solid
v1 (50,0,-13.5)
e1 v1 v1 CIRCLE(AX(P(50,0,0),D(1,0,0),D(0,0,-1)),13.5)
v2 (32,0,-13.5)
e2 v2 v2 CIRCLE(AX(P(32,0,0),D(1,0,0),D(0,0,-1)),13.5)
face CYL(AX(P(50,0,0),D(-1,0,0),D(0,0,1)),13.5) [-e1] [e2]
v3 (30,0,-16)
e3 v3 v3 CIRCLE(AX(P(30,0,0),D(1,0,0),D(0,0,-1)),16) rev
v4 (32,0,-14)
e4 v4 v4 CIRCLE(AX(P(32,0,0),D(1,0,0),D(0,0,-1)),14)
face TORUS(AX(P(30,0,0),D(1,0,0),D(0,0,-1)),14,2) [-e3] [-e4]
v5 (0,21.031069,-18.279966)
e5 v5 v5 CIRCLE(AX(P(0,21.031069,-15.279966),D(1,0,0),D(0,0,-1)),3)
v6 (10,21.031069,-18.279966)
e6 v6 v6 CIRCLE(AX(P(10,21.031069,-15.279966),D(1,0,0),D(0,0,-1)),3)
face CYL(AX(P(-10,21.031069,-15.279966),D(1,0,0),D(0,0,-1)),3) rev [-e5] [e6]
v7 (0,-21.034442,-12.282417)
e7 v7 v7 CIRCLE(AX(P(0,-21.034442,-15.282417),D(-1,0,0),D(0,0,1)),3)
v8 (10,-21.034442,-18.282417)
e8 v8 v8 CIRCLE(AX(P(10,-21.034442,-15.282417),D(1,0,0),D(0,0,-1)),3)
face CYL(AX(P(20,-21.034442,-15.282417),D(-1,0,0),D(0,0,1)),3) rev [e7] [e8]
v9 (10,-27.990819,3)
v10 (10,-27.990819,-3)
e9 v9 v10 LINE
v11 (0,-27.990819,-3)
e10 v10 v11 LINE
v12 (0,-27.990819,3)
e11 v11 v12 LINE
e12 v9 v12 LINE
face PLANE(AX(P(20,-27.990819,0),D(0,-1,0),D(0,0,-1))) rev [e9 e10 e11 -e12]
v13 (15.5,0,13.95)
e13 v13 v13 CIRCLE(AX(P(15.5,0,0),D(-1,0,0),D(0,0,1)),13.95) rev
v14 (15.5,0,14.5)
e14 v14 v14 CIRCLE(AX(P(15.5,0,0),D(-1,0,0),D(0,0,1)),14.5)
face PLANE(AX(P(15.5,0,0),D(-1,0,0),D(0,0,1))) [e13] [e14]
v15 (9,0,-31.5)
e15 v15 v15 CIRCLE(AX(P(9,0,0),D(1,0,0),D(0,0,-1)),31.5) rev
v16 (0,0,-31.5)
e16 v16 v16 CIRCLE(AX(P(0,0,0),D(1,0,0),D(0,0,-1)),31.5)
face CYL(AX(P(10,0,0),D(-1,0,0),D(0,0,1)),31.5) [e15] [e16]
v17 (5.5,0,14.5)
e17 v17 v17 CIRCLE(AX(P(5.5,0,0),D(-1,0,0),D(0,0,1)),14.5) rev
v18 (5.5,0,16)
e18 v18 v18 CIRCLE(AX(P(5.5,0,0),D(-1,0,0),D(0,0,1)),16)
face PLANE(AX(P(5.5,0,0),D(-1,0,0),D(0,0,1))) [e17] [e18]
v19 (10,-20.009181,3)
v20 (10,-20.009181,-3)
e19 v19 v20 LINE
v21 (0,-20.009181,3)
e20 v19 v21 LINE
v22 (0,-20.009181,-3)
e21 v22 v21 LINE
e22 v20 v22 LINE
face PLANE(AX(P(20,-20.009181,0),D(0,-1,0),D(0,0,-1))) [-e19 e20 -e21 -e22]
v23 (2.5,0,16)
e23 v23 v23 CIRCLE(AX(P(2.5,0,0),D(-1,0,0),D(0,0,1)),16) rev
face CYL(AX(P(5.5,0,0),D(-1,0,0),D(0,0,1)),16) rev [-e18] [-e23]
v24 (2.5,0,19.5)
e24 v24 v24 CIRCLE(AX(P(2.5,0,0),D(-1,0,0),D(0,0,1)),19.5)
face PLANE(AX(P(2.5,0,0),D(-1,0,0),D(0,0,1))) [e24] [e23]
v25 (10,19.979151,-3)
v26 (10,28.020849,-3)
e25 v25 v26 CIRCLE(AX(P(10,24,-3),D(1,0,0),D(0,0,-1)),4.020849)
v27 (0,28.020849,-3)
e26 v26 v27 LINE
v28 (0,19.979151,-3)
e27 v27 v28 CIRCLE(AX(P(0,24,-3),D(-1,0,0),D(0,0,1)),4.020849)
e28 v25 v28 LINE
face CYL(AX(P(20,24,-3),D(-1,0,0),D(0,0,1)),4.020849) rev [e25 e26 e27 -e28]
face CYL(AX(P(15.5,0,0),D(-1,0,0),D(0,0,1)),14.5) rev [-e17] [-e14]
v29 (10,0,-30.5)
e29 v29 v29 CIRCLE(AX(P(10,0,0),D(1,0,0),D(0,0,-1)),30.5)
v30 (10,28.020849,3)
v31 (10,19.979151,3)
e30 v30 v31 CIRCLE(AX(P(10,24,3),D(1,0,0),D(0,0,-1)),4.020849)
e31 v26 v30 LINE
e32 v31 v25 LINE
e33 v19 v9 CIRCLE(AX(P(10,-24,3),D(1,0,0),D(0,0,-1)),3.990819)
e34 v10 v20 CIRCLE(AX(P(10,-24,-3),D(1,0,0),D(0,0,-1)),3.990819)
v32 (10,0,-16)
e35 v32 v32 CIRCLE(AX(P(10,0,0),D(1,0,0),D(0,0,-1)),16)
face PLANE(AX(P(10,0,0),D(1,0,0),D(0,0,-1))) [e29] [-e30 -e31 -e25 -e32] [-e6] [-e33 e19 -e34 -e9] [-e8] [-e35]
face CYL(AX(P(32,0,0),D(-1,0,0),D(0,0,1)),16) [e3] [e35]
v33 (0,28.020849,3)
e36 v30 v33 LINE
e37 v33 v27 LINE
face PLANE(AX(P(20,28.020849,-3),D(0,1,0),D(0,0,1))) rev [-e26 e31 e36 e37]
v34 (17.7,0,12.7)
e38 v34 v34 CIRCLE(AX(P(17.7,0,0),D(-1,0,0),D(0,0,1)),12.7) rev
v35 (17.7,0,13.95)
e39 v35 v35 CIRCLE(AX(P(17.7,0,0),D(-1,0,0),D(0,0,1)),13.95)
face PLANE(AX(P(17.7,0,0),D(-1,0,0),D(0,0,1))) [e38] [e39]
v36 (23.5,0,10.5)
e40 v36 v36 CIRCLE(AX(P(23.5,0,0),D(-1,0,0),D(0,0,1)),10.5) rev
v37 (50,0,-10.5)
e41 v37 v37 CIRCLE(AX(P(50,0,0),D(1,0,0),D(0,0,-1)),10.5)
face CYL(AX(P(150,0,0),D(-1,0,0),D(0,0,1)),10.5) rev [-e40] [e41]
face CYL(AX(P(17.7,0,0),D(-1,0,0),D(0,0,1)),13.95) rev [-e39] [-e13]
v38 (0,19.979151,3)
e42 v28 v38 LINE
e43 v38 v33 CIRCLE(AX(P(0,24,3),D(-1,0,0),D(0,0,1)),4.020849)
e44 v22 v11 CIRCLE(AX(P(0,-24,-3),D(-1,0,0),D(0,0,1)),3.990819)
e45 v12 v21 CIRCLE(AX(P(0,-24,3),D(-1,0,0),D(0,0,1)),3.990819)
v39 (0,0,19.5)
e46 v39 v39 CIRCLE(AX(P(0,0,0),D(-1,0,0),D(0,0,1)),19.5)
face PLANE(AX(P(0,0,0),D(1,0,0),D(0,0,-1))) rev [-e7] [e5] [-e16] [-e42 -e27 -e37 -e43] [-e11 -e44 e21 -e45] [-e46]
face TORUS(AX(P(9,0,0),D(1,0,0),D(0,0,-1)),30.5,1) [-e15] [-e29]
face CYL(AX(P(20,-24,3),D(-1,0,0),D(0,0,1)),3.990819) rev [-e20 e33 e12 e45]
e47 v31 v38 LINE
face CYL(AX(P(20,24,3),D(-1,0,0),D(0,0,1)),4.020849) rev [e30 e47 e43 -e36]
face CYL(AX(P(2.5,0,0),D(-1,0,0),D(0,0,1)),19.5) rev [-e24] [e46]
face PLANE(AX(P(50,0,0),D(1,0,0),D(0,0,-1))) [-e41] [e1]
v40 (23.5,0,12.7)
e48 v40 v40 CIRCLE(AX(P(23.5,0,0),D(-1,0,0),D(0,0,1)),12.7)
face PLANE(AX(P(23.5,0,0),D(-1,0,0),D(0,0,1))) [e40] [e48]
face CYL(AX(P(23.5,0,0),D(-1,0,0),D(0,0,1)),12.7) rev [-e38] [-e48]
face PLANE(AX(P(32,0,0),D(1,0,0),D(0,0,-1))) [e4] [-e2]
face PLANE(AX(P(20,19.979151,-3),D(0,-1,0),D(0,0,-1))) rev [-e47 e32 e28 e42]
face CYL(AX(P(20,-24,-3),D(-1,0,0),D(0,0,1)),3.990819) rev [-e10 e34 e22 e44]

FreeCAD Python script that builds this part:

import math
import FreeCAD as App
import Part
import Sketcher
Q = App.Units.Quantity


def edges_at(feature, points):
    """Names of the edges that pass closest to the given points."""
    edges = feature.Shape.Edges
    near = lambda p: min(range(len(edges)), key=lambda i: edges[i].distToShape(Part.Vertex(*p))[0])
    return sorted({f"Edge{near(p) + 1}" for p in points})

doc = App.newDocument("Part")
body = doc.addObject("PartDesign::Body", "Body")

# Sketch on YZ plane
sketch1 = body.newObject("Sketcher::SketchObject", "Sketch")
sketch1.AttachmentSupport = (doc.getObject("YZ_Plane"), [""])
sketch1.MapMode = "FlatFace"
sketch1.addGeometry(Part.Circle(App.Vector(0, 0, 0), App.Vector(0, 0, 1), 32), False)
sketch1.addConstraint(Sketcher.Constraint("Coincident", 0, 3, -1, 1))
sketch1.addConstraint(Sketcher.Constraint("Diameter", 0, Q("63 mm")))
pad1 = body.newObject("PartDesign::Pad", "Pad")
pad1.Profile = sketch1
pad1.Length = 10

# Sketch on YZ plane
sketch2 = body.newObject("Sketcher::SketchObject", "Sketch001")
sketch2.AttachmentSupport = (doc.getObject("YZ_Plane"), [""])
sketch2.MapMode = "FlatFace"
sketch2.AttachmentOffset = App.Placement(App.Vector(0, 0, 10), App.Rotation())
sketch2.addGeometry(Part.Circle(App.Vector(0, 0, 0), App.Vector(0, 0, 1), 16), False)
sketch2.addConstraint(Sketcher.Constraint("Coincident", 0, 3, -1, 1))
sketch2.addConstraint(Sketcher.Constraint("Diameter", 0, Q("32 mm")))
pad2 = body.newObject("PartDesign::Pad", "Pad001")
pad2.Profile = sketch2
pad2.Length = 22

# Sketch on YZ plane
sketch3 = body.newObject("Sketcher::SketchObject", "Sketch002")
sketch3.AttachmentSupport = (doc.getObject("YZ_Plane"), [""])
sketch3.MapMode = "FlatFace"
sketch3.AttachmentOffset = App.Placement(App.Vector(0, 0, 32), App.Rotation())
sketch3.addGeometry(Part.Circle(App.Vector(0, 0, 0), App.Vector(0, 0, 1), 14), False)
sketch3.addConstraint(Sketcher.Constraint("Coincident", 0, 3, -1, 1))
sketch3.addConstraint(Sketcher.Constraint("Diameter", 0, Q("27 mm")))
pad3 = body.newObject("PartDesign::Pad", "Pad002")
pad3.Profile = sketch3
pad3.Length = 18
doc.recompute()

fillet = body.newObject("PartDesign::Fillet", "Fillet")
fillet.Base = (pad3, edges_at(pad3, [(10, 0, 31.5)]))
fillet.Radius = 1
doc.recompute()

fillet2 = body.newObject("PartDesign::Fillet", "Fillet001")
fillet2.Base = (fillet, edges_at(fillet, [(32, 0, 16)]))
fillet2.Radius = 2

# Sketch on YZ plane
sketch4 = body.newObject("Sketcher::SketchObject", "Sketch003")
sketch4.AttachmentSupport = (doc.getObject("YZ_Plane"), [""])
sketch4.MapMode = "FlatFace"
sketch4.addGeometry(Part.Circle(App.Vector(0, 0, 0), App.Vector(0, 0, 1), 10), False)
sketch4.addConstraint(Sketcher.Constraint("Coincident", 0, 3, -1, 1))
sketch4.addConstraint(Sketcher.Constraint("Diameter", 0, Q("21 mm")))
pocket1 = body.newObject("PartDesign::Pocket", "Pocket")
pocket1.Profile = sketch4
pocket1.Length = 150
pocket1.Reversed = True

# Sketch on YZ plane
sketch5 = body.newObject("Sketcher::SketchObject", "Sketch004")
sketch5.AttachmentSupport = (doc.getObject("YZ_Plane"), [""])
sketch5.MapMode = "FlatFace"
sketch5.addGeometry(Part.Circle(App.Vector(0, 0, 0), App.Vector(0, 0, 1), 13), False)
sketch5.addConstraint(Sketcher.Constraint("Coincident", 0, 3, -1, 1))
sketch5.addConstraint(Sketcher.Constraint("Diameter", 0, Q("25.4 mm")))
pocket2 = body.newObject("PartDesign::Pocket", "Pocket001")
pocket2.Profile = sketch5
pocket2.Length = 23.5
pocket2.Reversed = True

# Sketch on YZ plane
sketch6 = body.newObject("Sketcher::SketchObject", "Sketch005")
sketch6.AttachmentSupport = (doc.getObject("YZ_Plane"), [""])
sketch6.MapMode = "FlatFace"
sketch6.addGeometry(Part.Circle(App.Vector(0, 0, 0), App.Vector(0, 0, 1), 14), False)
sketch6.addConstraint(Sketcher.Constraint("Coincident", 0, 3, -1, 1))
sketch6.addConstraint(Sketcher.Constraint("Diameter", 0, Q("27.9 mm")))
pocket3 = body.newObject("PartDesign::Pocket", "Pocket002")
pocket3.Profile = sketch6
pocket3.Length = 17.7
pocket3.Reversed = True

# Sketch on YZ plane
sketch7 = body.newObject("Sketcher::SketchObject", "Sketch006")
sketch7.AttachmentSupport = (doc.getObject("YZ_Plane"), [""])
sketch7.MapMode = "FlatFace"
sketch7.addGeometry(Part.Circle(App.Vector(0, 0, 0), App.Vector(0, 0, 1), 14), False)
sketch7.addConstraint(Sketcher.Constraint("Coincident", 0, 3, -1, 1))
sketch7.addConstraint(Sketcher.Constraint("Diameter", 0, Q("29 mm")))
pocket4 = body.newObject("PartDesign::Pocket", "Pocket003")
pocket4.Profile = sketch7
pocket4.Length = 15.5
pocket4.Reversed = True

# Sketch on YZ plane
sketch8 = body.newObject("Sketcher::SketchObject", "Sketch007")
sketch8.AttachmentSupport = (doc.getObject("YZ_Plane"), [""])
sketch8.MapMode = "FlatFace"
sketch8.addGeometry(Part.Circle(App.Vector(0, 0, 0), App.Vector(0, 0, 1), 16), False)
sketch8.addConstraint(Sketcher.Constraint("Coincident", 0, 3, -1, 1))
sketch8.addConstraint(Sketcher.Constraint("Diameter", 0, Q("32 mm")))
pocket5 = body.newObject("PartDesign::Pocket", "Pocket004")
pocket5.Profile = sketch8
pocket5.Length = 5.5
pocket5.Reversed = True

# Sketch on YZ plane
sketch9 = body.newObject("Sketcher::SketchObject", "Sketch008")
sketch9.AttachmentSupport = (doc.getObject("YZ_Plane"), [""])
sketch9.MapMode = "FlatFace"
sketch9.addGeometry(Part.Circle(App.Vector(0, 0, 0), App.Vector(0, 0, 1), 20), False)
sketch9.addConstraint(Sketcher.Constraint("Coincident", 0, 3, -1, 1))
sketch9.addConstraint(Sketcher.Constraint("Diameter", 0, Q("39 mm")))
pocket6 = body.newObject("PartDesign::Pocket", "Pocket005")
pocket6.Profile = sketch9
pocket6.Length = 2.5
pocket6.Reversed = True

# Sketch on YZ plane
sketch10 = body.newObject("Sketcher::SketchObject", "Sketch009")
sketch10.AttachmentSupport = (doc.getObject("YZ_Plane"), [""])
sketch10.MapMode = "FlatFace"
sketch10.AttachmentOffset = App.Placement(App.Vector(0, 0, 10), App.Rotation())
sketch10.addGeometry(Part.Circle(App.Vector(21, -15.3, 0), App.Vector(0, 0, 1), 3), False)
sketch10.addConstraint(Sketcher.Constraint("Diameter", 0, Q("6 mm")))
sketch10.addConstraint(Sketcher.Constraint("DistanceX", -1, 1, 0, 3, Q("21.031069 mm")))
sketch10.addConstraint(Sketcher.Constraint("DistanceY", 0, 3, -1, 1, Q("15.279966 mm")))
pocket7 = body.newObject("PartDesign::Pocket", "Pocket006")
pocket7.Profile = sketch10
pocket7.Length = 20

# Sketch on YZ plane
sketch11 = body.newObject("Sketcher::SketchObject", "Sketch010")
sketch11.AttachmentSupport = (doc.getObject("YZ_Plane"), [""])
sketch11.MapMode = "FlatFace"
sketch11.addGeometry(Part.Circle(App.Vector(-21, -15.3, 0), App.Vector(0, 0, 1), 3), False)
sketch11.addConstraint(Sketcher.Constraint("Diameter", 0, Q("6 mm")))
sketch11.addConstraint(Sketcher.Constraint("DistanceX", 0, 3, -1, 1, Q("21.034442 mm")))
sketch11.addConstraint(Sketcher.Constraint("DistanceY", 0, 3, -1, 1, Q("15.282417 mm")))
pocket8 = body.newObject("PartDesign::Pocket", "Pocket007")
pocket8.Profile = sketch11
pocket8.Length = 20
pocket8.Reversed = True

# Sketch on YZ plane
sketch12 = body.newObject("Sketcher::SketchObject", "Sketch011")
sketch12.AttachmentSupport = (doc.getObject("YZ_Plane"), [""])
sketch12.MapMode = "FlatFace"
sketch12.addGeometry(Part.LineSegment(App.Vector(-20, 3, 0), App.Vector(-20, -3, 0)), False)
sketch12.addGeometry(Part.ArcOfCircle(Part.Circle(App.Vector(-24, -3, 0), App.Vector(0, 0, 1), 4), math.radians(180), math.radians(360)), False)
sketch12.addGeometry(Part.LineSegment(App.Vector(-28, -3, 0), App.Vector(-28, 3, 0)), False)
sketch12.addGeometry(Part.ArcOfCircle(Part.Circle(App.Vector(-24, 3, 0), App.Vector(0, 0, 1), 4), math.radians(0), math.radians(180)), False)
sketch12.addConstraint(Sketcher.Constraint("Tangent", 0, 2, 1, 2))
sketch12.addConstraint(Sketcher.Constraint("Tangent", 1, 1, 2, 1))
sketch12.addConstraint(Sketcher.Constraint("Tangent", 2, 2, 3, 2))
sketch12.addConstraint(Sketcher.Constraint("Tangent", 3, 1, 0, 1))
sketch12.addConstraint(Sketcher.Constraint("Vertical", 0))
sketch12.addConstraint(Sketcher.Constraint("Vertical", 2))
sketch12.addConstraint(Sketcher.Constraint("DistanceY", 0, 2, 0, 1, Q("6 mm")))
sketch12.addConstraint(Sketcher.Constraint("DistanceX", 1, 3, -1, 1, Q("24 mm")))
sketch12.addConstraint(Sketcher.Constraint("DistanceY", 1, 3, -1, 1, Q("3 mm")))
sketch12.addConstraint(Sketcher.Constraint("Radius", 1, Q("3.990819 mm")))
pocket9 = body.newObject("PartDesign::Pocket", "Pocket008")
pocket9.Profile = sketch12
pocket9.Length = 20
pocket9.Reversed = True

# Sketch on YZ plane
sketch13 = body.newObject("Sketcher::SketchObject", "Sketch012")
sketch13.AttachmentSupport = (doc.getObject("YZ_Plane"), [""])
sketch13.MapMode = "FlatFace"
sketch13.addGeometry(Part.LineSegment(App.Vector(28, 3, 0), App.Vector(28, -3, 0)), False)
sketch13.addGeometry(Part.ArcOfCircle(Part.Circle(App.Vector(24, -3, 0), App.Vector(0, 0, 1), 4), math.radians(180), math.radians(360)), False)
sketch13.addGeometry(Part.LineSegment(App.Vector(20, -3, 0), App.Vector(20, 3, 0)), False)
sketch13.addGeometry(Part.ArcOfCircle(Part.Circle(App.Vector(24, 3, 0), App.Vector(0, 0, 1), 4), math.radians(0), math.radians(180)), False)
sketch13.addConstraint(Sketcher.Constraint("Tangent", 0, 2, 1, 2))
sketch13.addConstraint(Sketcher.Constraint("Tangent", 1, 1, 2, 1))
sketch13.addConstraint(Sketcher.Constraint("Tangent", 2, 2, 3, 2))
sketch13.addConstraint(Sketcher.Constraint("Tangent", 3, 1, 0, 1))
sketch13.addConstraint(Sketcher.Constraint("Vertical", 0))
sketch13.addConstraint(Sketcher.Constraint("Vertical", 2))
sketch13.addConstraint(Sketcher.Constraint("DistanceY", 0, 2, 0, 1, Q("6 mm")))
sketch13.addConstraint(Sketcher.Constraint("DistanceX", -1, 1, 1, 3, Q("24 mm")))
sketch13.addConstraint(Sketcher.Constraint("DistanceY", 1, 3, -1, 1, Q("3 mm")))
sketch13.addConstraint(Sketcher.Constraint("Radius", 1, Q("4.020849 mm")))
pocket10 = body.newObject("PartDesign::Pocket", "Pocket009")
pocket10.Profile = sketch13
pocket10.Length = 20
pocket10.Reversed = True

doc.recompute()
